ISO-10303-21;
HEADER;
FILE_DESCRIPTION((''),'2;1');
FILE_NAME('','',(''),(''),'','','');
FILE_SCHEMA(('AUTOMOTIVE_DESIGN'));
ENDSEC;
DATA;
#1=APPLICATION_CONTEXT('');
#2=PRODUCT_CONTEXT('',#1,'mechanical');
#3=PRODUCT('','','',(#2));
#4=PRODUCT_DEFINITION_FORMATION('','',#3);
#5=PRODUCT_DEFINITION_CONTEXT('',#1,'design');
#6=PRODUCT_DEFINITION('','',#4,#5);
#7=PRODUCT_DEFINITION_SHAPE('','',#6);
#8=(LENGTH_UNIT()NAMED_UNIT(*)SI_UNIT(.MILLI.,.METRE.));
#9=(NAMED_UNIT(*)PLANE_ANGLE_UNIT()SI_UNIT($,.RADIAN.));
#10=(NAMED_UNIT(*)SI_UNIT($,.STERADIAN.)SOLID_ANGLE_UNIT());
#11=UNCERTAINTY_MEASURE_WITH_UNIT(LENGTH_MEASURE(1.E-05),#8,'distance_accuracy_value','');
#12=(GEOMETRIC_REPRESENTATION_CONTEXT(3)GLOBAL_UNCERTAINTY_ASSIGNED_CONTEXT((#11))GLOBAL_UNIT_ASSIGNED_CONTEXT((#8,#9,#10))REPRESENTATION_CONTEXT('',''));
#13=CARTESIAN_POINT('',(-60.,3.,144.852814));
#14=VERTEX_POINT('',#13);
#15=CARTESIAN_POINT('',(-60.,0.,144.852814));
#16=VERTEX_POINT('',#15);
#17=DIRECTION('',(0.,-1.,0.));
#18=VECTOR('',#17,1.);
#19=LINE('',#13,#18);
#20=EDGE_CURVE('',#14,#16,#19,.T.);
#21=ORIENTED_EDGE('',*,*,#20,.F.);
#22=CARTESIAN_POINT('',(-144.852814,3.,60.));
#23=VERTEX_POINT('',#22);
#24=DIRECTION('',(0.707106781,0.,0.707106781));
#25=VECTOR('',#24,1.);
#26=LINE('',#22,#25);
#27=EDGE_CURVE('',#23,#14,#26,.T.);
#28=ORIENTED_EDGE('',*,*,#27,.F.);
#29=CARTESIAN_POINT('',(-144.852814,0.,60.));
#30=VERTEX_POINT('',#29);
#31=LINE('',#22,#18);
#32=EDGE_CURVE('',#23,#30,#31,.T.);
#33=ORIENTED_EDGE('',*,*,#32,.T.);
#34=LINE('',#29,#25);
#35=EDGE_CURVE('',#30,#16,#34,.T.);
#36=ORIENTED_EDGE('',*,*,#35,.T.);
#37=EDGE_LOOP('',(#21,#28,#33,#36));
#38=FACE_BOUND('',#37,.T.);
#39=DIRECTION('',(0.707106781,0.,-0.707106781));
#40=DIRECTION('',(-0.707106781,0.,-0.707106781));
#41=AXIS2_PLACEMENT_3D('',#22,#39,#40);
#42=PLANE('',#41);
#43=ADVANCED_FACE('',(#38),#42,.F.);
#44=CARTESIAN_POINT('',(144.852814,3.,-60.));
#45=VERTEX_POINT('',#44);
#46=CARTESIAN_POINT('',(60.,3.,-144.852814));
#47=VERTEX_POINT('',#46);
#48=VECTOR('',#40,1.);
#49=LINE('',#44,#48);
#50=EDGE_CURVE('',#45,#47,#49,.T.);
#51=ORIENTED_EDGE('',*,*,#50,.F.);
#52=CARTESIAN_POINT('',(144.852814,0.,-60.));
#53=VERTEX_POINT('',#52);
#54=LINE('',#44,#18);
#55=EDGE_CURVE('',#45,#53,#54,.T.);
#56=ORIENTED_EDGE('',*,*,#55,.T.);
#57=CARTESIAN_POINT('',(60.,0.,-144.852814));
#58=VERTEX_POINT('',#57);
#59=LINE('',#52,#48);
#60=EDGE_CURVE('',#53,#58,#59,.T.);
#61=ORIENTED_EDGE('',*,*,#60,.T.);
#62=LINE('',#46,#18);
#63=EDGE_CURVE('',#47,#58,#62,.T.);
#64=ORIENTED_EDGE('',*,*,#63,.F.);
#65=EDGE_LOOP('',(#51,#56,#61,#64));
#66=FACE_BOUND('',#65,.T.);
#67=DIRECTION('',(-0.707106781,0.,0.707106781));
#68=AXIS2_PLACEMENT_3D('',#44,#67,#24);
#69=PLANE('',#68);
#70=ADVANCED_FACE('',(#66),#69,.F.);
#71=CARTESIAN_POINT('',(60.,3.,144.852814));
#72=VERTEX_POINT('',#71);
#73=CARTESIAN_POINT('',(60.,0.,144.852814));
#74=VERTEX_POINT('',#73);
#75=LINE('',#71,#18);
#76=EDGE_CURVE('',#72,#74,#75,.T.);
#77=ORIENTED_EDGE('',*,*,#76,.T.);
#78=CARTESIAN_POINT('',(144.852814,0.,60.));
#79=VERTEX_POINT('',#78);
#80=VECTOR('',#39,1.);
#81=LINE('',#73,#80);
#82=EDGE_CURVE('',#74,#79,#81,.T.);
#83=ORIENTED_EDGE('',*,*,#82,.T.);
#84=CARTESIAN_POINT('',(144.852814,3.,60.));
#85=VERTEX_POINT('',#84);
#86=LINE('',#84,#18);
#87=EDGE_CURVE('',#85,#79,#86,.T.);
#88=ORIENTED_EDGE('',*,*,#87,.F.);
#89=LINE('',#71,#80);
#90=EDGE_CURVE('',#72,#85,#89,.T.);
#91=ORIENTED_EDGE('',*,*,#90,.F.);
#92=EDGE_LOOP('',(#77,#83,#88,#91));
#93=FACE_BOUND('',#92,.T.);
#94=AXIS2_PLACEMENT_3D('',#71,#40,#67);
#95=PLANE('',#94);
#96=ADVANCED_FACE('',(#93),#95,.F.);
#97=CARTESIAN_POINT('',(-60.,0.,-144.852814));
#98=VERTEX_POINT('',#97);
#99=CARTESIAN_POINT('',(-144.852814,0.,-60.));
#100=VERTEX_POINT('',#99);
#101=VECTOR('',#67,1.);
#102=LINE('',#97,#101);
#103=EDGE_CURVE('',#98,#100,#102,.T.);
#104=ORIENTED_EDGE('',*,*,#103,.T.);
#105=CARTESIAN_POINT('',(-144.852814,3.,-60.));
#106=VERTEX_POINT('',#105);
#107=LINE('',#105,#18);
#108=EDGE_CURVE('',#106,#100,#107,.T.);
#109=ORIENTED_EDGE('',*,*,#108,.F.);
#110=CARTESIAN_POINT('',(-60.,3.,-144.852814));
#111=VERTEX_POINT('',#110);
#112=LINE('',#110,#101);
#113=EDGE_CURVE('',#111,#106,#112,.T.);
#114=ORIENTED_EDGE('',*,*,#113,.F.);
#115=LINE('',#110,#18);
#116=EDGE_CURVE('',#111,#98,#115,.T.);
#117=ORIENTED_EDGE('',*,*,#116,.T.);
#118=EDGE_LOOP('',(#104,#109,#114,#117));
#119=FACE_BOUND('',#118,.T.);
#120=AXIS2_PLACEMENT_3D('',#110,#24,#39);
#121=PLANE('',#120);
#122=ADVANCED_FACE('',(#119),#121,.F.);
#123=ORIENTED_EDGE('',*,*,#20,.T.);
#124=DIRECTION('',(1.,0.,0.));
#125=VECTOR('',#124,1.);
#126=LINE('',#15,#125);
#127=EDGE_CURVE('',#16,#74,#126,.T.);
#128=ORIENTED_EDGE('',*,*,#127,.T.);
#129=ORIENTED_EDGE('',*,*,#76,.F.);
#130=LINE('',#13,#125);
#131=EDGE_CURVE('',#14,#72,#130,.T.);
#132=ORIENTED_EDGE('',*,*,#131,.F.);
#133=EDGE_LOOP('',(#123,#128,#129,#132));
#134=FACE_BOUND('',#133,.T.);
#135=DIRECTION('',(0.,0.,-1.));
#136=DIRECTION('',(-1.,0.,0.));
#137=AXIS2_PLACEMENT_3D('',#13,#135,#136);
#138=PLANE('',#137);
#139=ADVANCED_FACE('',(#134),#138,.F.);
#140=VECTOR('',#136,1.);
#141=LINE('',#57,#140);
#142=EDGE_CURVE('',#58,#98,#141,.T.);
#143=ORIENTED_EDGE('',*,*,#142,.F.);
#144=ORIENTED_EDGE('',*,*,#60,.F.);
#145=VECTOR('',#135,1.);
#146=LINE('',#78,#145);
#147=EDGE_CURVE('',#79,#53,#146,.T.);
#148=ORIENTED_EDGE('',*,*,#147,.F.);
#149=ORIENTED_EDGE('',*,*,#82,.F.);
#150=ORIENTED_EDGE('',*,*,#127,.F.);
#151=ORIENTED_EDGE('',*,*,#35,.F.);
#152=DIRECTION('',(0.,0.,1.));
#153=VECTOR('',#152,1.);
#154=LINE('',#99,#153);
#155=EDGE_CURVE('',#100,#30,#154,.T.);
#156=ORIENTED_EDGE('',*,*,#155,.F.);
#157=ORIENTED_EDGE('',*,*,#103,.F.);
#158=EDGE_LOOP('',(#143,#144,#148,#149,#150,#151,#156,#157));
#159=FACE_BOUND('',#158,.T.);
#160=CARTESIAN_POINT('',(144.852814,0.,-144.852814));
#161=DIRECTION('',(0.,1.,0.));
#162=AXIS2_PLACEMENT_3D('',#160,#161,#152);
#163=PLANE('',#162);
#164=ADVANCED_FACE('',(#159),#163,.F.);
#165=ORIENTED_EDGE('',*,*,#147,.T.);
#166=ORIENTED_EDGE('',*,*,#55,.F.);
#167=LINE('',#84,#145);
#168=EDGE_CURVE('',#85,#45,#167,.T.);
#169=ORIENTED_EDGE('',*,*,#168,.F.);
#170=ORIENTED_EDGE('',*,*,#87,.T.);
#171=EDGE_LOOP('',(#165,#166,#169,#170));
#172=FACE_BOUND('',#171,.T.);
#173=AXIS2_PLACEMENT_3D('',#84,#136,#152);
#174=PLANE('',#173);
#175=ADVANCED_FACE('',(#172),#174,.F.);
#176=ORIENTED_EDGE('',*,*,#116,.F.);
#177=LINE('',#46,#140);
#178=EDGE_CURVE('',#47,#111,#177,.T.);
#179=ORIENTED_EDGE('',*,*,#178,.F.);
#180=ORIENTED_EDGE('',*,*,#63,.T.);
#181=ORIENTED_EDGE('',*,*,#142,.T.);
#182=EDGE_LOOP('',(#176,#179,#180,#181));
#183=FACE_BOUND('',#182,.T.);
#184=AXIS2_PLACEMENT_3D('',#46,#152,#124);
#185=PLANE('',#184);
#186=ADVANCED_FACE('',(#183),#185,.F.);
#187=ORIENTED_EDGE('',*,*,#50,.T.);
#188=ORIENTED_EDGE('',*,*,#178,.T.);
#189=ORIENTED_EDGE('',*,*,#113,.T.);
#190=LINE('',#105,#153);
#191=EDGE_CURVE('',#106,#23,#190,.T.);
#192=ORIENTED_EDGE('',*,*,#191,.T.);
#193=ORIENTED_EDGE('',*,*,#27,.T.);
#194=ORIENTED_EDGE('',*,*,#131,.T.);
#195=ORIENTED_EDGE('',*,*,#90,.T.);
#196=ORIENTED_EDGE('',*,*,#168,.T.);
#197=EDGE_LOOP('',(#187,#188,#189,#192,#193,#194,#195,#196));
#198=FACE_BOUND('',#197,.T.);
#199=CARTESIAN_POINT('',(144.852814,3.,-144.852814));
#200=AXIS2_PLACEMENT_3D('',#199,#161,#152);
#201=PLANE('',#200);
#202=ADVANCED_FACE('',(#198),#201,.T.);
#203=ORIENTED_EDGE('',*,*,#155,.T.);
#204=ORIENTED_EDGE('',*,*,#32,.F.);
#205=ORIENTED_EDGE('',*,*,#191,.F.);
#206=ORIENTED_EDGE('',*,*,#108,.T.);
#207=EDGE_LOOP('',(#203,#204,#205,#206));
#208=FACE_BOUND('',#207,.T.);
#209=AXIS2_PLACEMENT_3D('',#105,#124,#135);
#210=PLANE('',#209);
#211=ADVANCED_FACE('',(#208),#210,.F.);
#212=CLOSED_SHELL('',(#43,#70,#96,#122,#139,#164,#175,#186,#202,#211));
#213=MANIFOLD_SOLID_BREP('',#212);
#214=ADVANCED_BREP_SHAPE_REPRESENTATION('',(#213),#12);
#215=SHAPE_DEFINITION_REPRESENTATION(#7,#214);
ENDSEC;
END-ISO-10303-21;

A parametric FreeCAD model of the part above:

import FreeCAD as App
import Part
import Sketcher
from FreeCAD import Vector
Q = App.Units.Quantity

doc = App.newDocument("Part")
body = doc.addObject("PartDesign::Body", "Body")

# Sketch on XZ plane
sketch1 = body.newObject("Sketcher::SketchObject", "Sketch")
sketch1.AttachmentSupport = (doc.getObject("XZ_Plane"), [""])
sketch1.MapMode = "FlatFace"
sketch1.addGeometry([
    Part.LineSegment(Vector(145, -60, 0), Vector(60, -145, 0)),  # 0
    Part.LineSegment(Vector(60, -145, 0), Vector(-60, -145, 0)),  # 1
    Part.LineSegment(Vector(-60, -145, 0), Vector(-145, -60, 0)),  # 2
    Part.LineSegment(Vector(-145, -60, 0), Vector(-145, 60, 0)),  # 3
    Part.LineSegment(Vector(-145, 60, 0), Vector(-60, 145, 0)),  # 4
    Part.LineSegment(Vector(-60, 145, 0), Vector(60, 145, 0)),  # 5
    Part.LineSegment(Vector(60, 145, 0), Vector(145, 60, 0)),  # 6
    Part.LineSegment(Vector(145, 60, 0), Vector(145, -60, 0)),  # 7
], False)
sketch1.addConstraint([
    Sketcher.Constraint("Coincident", 0, 2, 1, 1),
    Sketcher.Constraint("Coincident", 1, 2, 2, 1),
    Sketcher.Constraint("Coincident", 2, 2, 3, 1),
    Sketcher.Constraint("Coincident", 3, 2, 4, 1),
    Sketcher.Constraint("Coincident", 4, 2, 5, 1),
    Sketcher.Constraint("Coincident", 5, 2, 6, 1),
    Sketcher.Constraint("Coincident", 6, 2, 7, 1),
    Sketcher.Constraint("Coincident", 7, 2, 0, 1),
    Sketcher.Constraint("Horizontal", 1),
    Sketcher.Constraint("Vertical", 3),
    Sketcher.Constraint("Horizontal", 5),
    Sketcher.Constraint("Vertical", 7),
    Sketcher.Constraint("Symmetric", 0, 2, 4, 2, -1, 1),
    Sketcher.Constraint("Symmetric", 2, 2, 6, 2, -1, 1),
    Sketcher.Constraint("Perpendicular", 0, 2),
    Sketcher.Constraint("Perpendicular", 2, 4),
    Sketcher.Constraint("Perpendicular", 4, 6),
    Sketcher.Constraint("Horizontal", 3, 2, 6, 2),
    Sketcher.Constraint("Vertical", 1, 2, 4, 2),
    Sketcher.Constraint("Equal", 5, 3),
    Sketcher.Constraint("DistanceX", 1, 2, 1, 1, Q("120 mm")),
    Sketcher.Constraint("Distance", 0, Q("120 mm")),
])
pad1 = body.newObject("PartDesign::Pad", "Pad")
pad1.Profile = sketch1
pad1.Length = 3
pad1.Reversed = True

doc.recompute()
